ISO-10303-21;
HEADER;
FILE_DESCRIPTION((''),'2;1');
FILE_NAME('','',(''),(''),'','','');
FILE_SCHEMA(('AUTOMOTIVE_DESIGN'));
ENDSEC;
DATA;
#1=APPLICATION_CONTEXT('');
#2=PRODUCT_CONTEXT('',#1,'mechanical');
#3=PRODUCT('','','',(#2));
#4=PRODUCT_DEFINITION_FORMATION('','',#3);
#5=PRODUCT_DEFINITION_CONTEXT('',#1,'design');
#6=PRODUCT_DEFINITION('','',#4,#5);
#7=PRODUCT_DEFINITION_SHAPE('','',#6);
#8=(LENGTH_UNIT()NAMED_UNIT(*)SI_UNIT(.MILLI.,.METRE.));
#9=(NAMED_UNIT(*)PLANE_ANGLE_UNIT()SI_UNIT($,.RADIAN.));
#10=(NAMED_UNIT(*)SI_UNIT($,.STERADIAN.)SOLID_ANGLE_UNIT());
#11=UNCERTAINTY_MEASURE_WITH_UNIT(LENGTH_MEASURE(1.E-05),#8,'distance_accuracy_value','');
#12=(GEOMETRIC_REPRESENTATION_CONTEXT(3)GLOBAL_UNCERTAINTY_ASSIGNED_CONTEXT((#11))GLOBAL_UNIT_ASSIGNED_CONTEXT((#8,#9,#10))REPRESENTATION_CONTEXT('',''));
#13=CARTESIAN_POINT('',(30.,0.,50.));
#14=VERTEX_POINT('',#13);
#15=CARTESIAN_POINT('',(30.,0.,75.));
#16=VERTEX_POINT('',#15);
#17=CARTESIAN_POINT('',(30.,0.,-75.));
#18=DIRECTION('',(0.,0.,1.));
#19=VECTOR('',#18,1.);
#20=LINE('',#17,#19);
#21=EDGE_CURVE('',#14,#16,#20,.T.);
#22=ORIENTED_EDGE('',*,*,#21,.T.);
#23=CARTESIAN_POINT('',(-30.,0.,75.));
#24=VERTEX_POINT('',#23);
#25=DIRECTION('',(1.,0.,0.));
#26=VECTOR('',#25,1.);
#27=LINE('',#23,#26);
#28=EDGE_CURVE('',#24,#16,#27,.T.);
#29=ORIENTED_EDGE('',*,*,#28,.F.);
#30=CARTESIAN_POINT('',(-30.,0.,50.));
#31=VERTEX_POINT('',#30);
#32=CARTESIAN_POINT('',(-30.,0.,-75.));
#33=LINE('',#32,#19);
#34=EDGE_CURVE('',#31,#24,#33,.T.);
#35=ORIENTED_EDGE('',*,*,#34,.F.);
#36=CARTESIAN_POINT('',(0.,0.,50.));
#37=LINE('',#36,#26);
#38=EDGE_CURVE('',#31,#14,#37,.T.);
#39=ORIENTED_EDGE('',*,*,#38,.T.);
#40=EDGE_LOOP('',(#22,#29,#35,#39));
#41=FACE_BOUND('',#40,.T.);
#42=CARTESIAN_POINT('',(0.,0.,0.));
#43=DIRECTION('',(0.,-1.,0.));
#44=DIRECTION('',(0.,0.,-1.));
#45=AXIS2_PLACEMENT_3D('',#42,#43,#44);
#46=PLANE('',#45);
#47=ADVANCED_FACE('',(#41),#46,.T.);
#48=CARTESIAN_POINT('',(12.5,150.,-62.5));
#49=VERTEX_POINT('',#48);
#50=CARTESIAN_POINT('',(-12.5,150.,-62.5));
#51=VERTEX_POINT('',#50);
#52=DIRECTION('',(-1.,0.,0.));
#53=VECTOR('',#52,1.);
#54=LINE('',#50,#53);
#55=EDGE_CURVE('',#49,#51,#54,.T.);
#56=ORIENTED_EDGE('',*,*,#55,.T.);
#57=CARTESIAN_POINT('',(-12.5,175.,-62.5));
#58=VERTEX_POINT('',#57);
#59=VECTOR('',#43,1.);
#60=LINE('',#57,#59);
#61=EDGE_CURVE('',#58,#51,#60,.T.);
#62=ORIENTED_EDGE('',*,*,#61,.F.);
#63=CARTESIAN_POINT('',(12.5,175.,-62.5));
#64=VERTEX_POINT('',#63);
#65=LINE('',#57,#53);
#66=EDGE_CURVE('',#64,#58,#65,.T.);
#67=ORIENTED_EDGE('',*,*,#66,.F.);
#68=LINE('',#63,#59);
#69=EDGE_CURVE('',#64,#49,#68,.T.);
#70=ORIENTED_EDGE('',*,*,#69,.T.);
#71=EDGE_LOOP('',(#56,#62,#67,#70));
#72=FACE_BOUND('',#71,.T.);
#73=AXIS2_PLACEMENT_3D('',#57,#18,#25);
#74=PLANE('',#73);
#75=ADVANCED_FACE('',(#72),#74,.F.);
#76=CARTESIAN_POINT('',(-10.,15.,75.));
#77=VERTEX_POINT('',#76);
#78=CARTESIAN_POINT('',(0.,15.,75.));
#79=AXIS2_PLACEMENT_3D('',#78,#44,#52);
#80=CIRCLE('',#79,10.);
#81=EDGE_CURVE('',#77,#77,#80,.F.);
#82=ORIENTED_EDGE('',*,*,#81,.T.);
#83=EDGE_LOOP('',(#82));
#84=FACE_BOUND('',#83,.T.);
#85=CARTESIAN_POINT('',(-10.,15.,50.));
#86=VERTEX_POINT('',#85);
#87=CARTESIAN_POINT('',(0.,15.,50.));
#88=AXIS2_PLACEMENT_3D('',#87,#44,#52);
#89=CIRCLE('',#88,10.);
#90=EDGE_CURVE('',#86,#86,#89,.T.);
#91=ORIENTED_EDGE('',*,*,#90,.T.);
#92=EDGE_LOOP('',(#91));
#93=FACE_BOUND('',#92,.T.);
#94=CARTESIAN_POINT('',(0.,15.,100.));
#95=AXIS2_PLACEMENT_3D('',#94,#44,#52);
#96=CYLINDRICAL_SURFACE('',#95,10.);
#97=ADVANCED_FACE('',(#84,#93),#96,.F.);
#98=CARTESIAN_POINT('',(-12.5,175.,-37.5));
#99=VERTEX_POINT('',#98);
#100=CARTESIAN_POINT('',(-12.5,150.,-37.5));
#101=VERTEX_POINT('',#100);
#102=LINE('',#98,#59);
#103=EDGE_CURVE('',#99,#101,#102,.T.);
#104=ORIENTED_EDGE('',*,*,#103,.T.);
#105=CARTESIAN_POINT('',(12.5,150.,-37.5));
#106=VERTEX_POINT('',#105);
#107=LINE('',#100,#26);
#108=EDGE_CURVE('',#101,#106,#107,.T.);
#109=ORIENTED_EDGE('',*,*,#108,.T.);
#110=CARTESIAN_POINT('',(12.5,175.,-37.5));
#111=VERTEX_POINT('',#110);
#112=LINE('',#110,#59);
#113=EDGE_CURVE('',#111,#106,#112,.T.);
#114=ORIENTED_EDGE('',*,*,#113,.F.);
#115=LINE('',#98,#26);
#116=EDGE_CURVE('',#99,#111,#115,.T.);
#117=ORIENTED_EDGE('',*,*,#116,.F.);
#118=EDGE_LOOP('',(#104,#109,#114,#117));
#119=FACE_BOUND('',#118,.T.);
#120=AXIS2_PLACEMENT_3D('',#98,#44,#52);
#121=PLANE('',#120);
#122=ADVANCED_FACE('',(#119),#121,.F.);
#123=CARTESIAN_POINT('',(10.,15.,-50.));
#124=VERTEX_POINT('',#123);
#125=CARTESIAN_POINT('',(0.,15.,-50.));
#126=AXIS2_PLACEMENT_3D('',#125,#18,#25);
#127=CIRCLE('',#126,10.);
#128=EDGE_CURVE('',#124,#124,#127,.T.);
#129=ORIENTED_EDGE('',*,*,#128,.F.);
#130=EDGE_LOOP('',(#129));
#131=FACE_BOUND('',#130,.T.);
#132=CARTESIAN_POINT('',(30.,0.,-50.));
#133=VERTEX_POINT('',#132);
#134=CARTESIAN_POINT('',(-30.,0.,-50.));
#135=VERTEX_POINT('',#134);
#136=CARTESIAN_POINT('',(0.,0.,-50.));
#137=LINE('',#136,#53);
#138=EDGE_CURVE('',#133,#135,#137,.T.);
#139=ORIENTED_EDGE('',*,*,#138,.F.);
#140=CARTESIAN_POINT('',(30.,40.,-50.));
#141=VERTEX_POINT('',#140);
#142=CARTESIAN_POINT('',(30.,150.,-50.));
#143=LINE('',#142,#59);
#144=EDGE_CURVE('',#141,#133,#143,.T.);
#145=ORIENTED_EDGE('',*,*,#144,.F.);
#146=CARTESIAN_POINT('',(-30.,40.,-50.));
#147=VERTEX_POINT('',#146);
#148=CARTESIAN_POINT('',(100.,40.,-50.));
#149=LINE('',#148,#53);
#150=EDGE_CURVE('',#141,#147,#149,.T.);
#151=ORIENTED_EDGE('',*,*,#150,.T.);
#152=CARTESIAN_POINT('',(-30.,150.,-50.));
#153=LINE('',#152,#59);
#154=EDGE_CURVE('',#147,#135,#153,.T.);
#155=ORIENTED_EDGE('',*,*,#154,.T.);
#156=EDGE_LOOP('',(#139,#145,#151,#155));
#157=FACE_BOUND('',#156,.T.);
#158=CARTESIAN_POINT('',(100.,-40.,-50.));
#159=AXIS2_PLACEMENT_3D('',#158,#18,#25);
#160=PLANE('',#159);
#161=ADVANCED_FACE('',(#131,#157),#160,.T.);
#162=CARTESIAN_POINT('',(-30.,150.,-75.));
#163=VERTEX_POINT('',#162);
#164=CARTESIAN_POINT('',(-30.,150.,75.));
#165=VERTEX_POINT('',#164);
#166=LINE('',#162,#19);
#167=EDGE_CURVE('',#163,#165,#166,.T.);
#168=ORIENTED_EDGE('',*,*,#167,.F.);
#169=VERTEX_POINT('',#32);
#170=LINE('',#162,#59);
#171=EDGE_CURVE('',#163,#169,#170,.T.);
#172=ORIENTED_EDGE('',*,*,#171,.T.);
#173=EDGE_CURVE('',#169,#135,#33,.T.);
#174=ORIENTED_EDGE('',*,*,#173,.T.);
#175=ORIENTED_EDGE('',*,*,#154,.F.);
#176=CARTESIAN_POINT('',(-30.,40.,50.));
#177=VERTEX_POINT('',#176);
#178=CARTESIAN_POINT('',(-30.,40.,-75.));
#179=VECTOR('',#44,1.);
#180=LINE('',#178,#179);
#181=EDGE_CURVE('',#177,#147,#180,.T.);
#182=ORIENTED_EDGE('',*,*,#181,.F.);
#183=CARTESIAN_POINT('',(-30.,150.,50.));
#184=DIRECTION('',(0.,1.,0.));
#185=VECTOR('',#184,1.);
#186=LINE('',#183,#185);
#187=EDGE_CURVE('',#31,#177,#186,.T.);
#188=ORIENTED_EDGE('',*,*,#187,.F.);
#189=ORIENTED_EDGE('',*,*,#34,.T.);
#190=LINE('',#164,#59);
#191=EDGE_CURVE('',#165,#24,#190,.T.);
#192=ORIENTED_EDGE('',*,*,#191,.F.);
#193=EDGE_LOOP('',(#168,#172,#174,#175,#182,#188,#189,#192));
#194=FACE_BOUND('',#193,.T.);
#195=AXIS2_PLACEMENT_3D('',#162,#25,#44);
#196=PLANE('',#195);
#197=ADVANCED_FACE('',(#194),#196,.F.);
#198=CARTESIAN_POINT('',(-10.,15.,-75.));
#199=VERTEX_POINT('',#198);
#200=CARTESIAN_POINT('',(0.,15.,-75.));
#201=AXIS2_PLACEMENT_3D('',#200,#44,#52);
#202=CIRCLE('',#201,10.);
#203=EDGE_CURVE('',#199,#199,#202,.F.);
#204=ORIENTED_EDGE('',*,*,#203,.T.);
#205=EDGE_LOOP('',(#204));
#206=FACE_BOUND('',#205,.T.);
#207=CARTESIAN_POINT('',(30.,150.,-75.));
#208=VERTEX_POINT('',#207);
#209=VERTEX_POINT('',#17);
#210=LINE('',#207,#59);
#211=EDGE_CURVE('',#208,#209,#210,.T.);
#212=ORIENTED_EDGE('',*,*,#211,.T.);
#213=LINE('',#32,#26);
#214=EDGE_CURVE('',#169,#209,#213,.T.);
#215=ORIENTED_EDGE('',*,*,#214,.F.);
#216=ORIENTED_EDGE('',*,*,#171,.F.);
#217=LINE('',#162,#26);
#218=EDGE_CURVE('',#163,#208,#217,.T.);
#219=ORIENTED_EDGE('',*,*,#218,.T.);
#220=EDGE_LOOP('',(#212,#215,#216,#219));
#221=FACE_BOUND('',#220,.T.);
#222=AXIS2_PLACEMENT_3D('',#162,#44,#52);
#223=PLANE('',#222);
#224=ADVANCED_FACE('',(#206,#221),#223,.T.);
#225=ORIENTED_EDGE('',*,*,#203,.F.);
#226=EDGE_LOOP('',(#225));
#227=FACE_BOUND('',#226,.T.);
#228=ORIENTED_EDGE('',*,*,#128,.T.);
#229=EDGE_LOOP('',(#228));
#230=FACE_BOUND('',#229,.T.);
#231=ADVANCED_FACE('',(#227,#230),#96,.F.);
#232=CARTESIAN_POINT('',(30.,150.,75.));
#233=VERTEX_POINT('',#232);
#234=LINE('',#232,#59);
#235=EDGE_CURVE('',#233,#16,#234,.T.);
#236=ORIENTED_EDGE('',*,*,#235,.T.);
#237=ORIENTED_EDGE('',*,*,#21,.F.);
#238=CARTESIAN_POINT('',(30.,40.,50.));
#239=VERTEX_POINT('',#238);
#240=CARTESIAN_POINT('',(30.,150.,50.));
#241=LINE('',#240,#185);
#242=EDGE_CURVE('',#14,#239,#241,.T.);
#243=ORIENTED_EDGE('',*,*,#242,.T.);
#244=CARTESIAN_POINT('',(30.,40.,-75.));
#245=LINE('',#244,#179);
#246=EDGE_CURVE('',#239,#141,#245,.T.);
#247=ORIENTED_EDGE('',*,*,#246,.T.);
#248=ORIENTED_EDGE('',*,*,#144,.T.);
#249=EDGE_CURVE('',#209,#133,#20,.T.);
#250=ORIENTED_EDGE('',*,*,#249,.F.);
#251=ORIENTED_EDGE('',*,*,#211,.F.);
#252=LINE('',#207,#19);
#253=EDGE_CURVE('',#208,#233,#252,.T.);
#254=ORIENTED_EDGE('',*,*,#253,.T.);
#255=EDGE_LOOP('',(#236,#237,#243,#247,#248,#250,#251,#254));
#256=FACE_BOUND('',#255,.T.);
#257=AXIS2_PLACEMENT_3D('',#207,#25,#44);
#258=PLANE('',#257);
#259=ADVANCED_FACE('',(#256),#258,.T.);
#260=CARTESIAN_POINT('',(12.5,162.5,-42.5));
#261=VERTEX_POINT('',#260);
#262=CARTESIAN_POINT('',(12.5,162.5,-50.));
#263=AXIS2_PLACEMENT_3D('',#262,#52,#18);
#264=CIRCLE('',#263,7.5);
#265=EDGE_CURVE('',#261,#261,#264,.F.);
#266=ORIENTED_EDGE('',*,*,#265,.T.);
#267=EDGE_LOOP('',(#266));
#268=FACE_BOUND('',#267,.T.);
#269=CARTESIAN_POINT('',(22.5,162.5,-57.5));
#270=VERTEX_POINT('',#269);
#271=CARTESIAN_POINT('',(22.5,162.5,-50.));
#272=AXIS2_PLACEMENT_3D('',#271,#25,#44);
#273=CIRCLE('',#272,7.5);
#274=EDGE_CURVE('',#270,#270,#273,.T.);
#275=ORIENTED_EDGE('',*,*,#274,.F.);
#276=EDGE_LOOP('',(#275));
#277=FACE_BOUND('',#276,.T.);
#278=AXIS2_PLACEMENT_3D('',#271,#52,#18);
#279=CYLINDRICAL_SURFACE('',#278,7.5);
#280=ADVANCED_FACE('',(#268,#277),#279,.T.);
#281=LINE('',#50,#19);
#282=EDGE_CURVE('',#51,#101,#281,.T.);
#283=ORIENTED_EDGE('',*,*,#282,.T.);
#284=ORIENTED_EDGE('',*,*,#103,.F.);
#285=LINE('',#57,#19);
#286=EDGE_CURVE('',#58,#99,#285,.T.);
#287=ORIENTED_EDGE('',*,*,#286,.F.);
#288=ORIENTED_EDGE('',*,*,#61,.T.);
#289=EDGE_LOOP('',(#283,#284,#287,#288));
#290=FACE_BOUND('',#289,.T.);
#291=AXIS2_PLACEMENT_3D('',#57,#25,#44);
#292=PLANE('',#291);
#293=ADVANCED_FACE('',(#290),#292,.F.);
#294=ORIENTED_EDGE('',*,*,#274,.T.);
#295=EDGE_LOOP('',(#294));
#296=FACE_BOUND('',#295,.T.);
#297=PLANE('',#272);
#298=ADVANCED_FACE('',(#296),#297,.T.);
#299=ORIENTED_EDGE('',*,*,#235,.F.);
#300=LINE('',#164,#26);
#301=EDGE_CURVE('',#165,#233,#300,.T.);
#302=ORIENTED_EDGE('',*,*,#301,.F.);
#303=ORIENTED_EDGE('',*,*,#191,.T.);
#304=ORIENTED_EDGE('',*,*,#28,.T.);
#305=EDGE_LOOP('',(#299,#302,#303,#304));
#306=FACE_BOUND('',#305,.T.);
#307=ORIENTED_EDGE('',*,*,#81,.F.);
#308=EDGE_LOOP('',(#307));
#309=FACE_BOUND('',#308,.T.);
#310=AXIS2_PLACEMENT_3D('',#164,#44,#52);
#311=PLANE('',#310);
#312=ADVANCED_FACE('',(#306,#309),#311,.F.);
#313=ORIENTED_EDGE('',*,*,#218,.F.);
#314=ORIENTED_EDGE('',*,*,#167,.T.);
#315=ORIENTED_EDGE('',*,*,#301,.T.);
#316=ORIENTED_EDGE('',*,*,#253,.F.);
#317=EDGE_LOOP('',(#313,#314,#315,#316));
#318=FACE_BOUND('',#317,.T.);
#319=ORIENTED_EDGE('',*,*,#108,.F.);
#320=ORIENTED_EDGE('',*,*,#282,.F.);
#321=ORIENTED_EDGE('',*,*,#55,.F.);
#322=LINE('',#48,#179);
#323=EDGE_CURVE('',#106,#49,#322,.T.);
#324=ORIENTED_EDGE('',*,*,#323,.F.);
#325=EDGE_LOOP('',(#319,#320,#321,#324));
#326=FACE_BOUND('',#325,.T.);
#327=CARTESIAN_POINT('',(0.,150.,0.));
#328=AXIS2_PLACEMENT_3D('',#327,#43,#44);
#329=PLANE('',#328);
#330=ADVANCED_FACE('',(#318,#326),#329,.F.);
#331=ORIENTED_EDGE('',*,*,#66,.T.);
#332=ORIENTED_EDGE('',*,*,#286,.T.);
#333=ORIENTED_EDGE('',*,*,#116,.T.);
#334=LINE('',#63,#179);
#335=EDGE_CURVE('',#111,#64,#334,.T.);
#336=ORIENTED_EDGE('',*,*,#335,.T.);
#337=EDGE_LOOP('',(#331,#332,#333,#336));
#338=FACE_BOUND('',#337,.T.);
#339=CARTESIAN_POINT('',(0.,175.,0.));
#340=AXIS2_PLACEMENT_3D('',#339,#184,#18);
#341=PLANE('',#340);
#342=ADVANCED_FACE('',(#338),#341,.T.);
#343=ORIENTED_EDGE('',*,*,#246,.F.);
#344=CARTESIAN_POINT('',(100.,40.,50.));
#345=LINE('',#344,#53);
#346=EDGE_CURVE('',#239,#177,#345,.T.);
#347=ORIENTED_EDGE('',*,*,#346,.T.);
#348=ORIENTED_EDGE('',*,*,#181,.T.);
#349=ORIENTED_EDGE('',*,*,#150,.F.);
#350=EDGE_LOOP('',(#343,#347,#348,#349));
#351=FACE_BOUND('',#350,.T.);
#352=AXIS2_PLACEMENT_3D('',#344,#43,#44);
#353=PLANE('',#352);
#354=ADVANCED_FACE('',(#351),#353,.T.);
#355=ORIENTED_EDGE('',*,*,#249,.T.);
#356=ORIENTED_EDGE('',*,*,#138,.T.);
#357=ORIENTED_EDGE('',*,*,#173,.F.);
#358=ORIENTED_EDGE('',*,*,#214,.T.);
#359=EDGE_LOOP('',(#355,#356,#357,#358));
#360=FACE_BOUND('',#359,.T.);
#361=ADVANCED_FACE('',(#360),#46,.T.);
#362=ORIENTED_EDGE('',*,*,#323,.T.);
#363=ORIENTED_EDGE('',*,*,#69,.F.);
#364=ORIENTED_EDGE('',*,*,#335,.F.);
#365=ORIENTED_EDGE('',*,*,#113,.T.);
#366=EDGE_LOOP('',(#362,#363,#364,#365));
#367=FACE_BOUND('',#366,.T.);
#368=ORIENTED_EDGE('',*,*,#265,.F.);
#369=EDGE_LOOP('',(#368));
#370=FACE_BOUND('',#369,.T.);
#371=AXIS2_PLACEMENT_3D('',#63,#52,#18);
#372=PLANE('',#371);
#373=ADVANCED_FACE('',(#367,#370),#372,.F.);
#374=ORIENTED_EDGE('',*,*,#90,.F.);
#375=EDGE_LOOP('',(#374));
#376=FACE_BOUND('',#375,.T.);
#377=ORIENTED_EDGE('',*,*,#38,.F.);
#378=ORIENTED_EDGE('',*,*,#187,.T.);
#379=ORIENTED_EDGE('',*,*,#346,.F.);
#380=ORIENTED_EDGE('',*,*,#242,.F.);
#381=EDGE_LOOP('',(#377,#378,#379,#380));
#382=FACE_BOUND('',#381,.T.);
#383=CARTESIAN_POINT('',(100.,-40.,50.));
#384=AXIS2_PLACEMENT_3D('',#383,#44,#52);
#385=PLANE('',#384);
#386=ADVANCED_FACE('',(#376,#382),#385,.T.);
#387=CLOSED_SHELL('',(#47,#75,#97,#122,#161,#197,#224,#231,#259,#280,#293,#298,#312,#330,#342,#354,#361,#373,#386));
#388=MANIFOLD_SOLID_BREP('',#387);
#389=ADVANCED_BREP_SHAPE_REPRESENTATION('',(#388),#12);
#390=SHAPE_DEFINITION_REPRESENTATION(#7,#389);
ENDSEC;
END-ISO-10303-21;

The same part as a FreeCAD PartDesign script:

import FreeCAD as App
import Part
import Sketcher

V = App.Vector
Q = App.Units.Quantity

doc = App.newDocument("Part")
body = doc.addObject("PartDesign::Body", "Body")

# Sketch on XZ plane
sketch1 = body.newObject("Sketcher::SketchObject", "Sketch")
sketch1.AttachmentSupport = (doc.getObject("XZ_Plane"), [""])
sketch1.MapMode = "FlatFace"
sketch1.addGeometry([
    Part.LineSegment(V(-30, -75, 0), V(-30, 75, 0)),
    Part.LineSegment(V(-30, 75, 0), V(30, 75, 0)),
    Part.LineSegment(V(30, 75, 0), V(30, -75, 0)),
    Part.LineSegment(V(30, -75, 0), V(-30, -75, 0)),
], False)
sketch1.addConstraint([
    Sketcher.Constraint("Coincident", 0, 2, 1, 1),
    Sketcher.Constraint("Coincident", 1, 2, 2, 1),
    Sketcher.Constraint("Coincident", 2, 2, 3, 1),
    Sketcher.Constraint("Coincident", 3, 2, 0, 1),
    Sketcher.Constraint("Vertical", 0),
    Sketcher.Constraint("Horizontal", 1),
    Sketcher.Constraint("Vertical", 2),
    Sketcher.Constraint("Horizontal", 3),
    Sketcher.Constraint("Symmetric", 0, 2, 2, 2, -1, 1),
    Sketcher.Constraint("DistanceX", 1, 1, 1, 2, Q("60 mm")),
    Sketcher.Constraint("DistanceY", 0, 1, 0, 2, Q("150 mm")),
])
pad1 = body.newObject("PartDesign::Pad", "Pad")
pad1.Profile = sketch1
pad1.Length = 150
pad1.Reversed = True

# Sketch on XY plane
sketch2 = body.newObject("Sketcher::SketchObject", "Sketch001")
sketch2.AttachmentSupport = (doc.getObject("XY_Plane"), [""])
sketch2.MapMode = "FlatFace"
sketch2.addGeometry(Part.Circle(V(0, 15, 0), V(0, 0, 1), 10), False)
sketch2.addConstraint([
    Sketcher.Constraint("PointOnObject", 0, 3, -2),
    Sketcher.Constraint("Diameter", 0, Q("20 mm")),
    Sketcher.Constraint("DistanceY", -1, 1, 0, 3, Q("15 mm")),
])
pocket1 = body.newObject("PartDesign::Pocket", "Pocket")
pocket1.Profile = sketch2
pocket1.Type = "ThroughAll"
pocket1.Midplane = True

# Sketch on YZ plane
sketch3 = body.newObject("Sketcher::SketchObject", "Sketch002")
sketch3.AttachmentSupport = (doc.getObject("YZ_Plane"), [""])
sketch3.MapMode = "FlatFace"
sketch3.addGeometry([
    Part.LineSegment(V(40, 50, 0), V(-40, 50, 0)),
    Part.LineSegment(V(-40, 50, 0), V(-40, -50, 0)),
    Part.LineSegment(V(-40, -50, 0), V(40, -50, 0)),
    Part.LineSegment(V(40, -50, 0), V(40, 50, 0)),
], False)
sketch3.addConstraint([
    Sketcher.Constraint("Coincident", 0, 2, 1, 1),
    Sketcher.Constraint("Coincident", 1, 2, 2, 1),
    Sketcher.Constraint("Coincident", 2, 2, 3, 1),
    Sketcher.Constraint("Coincident", 3, 2, 0, 1),
    Sketcher.Constraint("Horizontal", 0),
    Sketcher.Constraint("Vertical", 1),
    Sketcher.Constraint("Horizontal", 2),
    Sketcher.Constraint("Vertical", 3),
    Sketcher.Constraint("Symmetric", 0, 2, 2, 2, -1, 1),
    Sketcher.Constraint("DistanceX", 0, 2, 0, 1, Q("80 mm")),
    Sketcher.Constraint("DistanceY", 1, 2, 1, 1, Q("100 mm")),
])
pocket2 = body.newObject("PartDesign::Pocket", "Pocket001")
pocket2.Profile = sketch3
pocket2.Type = "ThroughAll"
pocket2.Midplane = True

# Sketch on XZ plane
sketch4 = body.newObject("Sketcher::SketchObject", "Sketch003")
sketch4.AttachmentSupport = (doc.getObject("XZ_Plane"), [""])
sketch4.MapMode = "FlatFace"
sketch4.AttachmentOffset = App.Placement(V(0, 0, -150), App.Rotation())
sketch4.addGeometry([
    Part.LineSegment(V(-12, -62, 0), V(-12, -38, 0)),
    Part.LineSegment(V(-12, -38, 0), V(12, -38, 0)),
    Part.LineSegment(V(12, -38, 0), V(12, -62, 0)),
    Part.LineSegment(V(12, -62, 0), V(-12, -62, 0)),
], False)
sketch4.addConstraint([
    Sketcher.Constraint("Coincident", 0, 2, 1, 1),
    Sketcher.Constraint("Coincident", 1, 2, 2, 1),
    Sketcher.Constraint("Coincident", 2, 2, 3, 1),
    Sketcher.Constraint("Coincident", 3, 2, 0, 1),
    Sketcher.Constraint("Vertical", 0),
    Sketcher.Constraint("Horizontal", 1),
    Sketcher.Constraint("Vertical", 2),
    Sketcher.Constraint("Horizontal", 3),
    Sketcher.Constraint("Equal", 3, 0),
    Sketcher.Constraint("DistanceX", 1, 1, 1, 2, Q("25 mm")),
    Sketcher.Constraint("DistanceX", 0, 2, -1, 1, Q("12.5 mm")),
    Sketcher.Constraint("DistanceY", 0, 2, -1, 1, Q("37.5 mm")),
])
pad2 = body.newObject("PartDesign::Pad", "Pad001")
pad2.Profile = sketch4
pad2.Length = 25
pad2.Reversed = True

# Sketch on YZ plane
sketch5 = body.newObject("Sketcher::SketchObject", "Sketch004")
sketch5.AttachmentSupport = (doc.getObject("YZ_Plane"), [""])
sketch5.MapMode = "FlatFace"
sketch5.AttachmentOffset = App.Placement(V(0, 0, 12.5), App.Rotation())
sketch5.addGeometry(Part.Circle(V(162, -50, 0), V(0, 0, 1), 8), False)
sketch5.addConstraint([
    Sketcher.Constraint("Diameter", 0, Q("15 mm")),
    Sketcher.Constraint("DistanceY", 0, 3, -1, 1, Q("50 mm")),
    Sketcher.Constraint("DistanceX", -1, 1, 0, 3, Q("162.5 mm")),
])
pad3 = body.newObject("PartDesign::Pad", "Pad002")
pad3.Profile = sketch5
pad3.Length = 10

doc.recompute()
